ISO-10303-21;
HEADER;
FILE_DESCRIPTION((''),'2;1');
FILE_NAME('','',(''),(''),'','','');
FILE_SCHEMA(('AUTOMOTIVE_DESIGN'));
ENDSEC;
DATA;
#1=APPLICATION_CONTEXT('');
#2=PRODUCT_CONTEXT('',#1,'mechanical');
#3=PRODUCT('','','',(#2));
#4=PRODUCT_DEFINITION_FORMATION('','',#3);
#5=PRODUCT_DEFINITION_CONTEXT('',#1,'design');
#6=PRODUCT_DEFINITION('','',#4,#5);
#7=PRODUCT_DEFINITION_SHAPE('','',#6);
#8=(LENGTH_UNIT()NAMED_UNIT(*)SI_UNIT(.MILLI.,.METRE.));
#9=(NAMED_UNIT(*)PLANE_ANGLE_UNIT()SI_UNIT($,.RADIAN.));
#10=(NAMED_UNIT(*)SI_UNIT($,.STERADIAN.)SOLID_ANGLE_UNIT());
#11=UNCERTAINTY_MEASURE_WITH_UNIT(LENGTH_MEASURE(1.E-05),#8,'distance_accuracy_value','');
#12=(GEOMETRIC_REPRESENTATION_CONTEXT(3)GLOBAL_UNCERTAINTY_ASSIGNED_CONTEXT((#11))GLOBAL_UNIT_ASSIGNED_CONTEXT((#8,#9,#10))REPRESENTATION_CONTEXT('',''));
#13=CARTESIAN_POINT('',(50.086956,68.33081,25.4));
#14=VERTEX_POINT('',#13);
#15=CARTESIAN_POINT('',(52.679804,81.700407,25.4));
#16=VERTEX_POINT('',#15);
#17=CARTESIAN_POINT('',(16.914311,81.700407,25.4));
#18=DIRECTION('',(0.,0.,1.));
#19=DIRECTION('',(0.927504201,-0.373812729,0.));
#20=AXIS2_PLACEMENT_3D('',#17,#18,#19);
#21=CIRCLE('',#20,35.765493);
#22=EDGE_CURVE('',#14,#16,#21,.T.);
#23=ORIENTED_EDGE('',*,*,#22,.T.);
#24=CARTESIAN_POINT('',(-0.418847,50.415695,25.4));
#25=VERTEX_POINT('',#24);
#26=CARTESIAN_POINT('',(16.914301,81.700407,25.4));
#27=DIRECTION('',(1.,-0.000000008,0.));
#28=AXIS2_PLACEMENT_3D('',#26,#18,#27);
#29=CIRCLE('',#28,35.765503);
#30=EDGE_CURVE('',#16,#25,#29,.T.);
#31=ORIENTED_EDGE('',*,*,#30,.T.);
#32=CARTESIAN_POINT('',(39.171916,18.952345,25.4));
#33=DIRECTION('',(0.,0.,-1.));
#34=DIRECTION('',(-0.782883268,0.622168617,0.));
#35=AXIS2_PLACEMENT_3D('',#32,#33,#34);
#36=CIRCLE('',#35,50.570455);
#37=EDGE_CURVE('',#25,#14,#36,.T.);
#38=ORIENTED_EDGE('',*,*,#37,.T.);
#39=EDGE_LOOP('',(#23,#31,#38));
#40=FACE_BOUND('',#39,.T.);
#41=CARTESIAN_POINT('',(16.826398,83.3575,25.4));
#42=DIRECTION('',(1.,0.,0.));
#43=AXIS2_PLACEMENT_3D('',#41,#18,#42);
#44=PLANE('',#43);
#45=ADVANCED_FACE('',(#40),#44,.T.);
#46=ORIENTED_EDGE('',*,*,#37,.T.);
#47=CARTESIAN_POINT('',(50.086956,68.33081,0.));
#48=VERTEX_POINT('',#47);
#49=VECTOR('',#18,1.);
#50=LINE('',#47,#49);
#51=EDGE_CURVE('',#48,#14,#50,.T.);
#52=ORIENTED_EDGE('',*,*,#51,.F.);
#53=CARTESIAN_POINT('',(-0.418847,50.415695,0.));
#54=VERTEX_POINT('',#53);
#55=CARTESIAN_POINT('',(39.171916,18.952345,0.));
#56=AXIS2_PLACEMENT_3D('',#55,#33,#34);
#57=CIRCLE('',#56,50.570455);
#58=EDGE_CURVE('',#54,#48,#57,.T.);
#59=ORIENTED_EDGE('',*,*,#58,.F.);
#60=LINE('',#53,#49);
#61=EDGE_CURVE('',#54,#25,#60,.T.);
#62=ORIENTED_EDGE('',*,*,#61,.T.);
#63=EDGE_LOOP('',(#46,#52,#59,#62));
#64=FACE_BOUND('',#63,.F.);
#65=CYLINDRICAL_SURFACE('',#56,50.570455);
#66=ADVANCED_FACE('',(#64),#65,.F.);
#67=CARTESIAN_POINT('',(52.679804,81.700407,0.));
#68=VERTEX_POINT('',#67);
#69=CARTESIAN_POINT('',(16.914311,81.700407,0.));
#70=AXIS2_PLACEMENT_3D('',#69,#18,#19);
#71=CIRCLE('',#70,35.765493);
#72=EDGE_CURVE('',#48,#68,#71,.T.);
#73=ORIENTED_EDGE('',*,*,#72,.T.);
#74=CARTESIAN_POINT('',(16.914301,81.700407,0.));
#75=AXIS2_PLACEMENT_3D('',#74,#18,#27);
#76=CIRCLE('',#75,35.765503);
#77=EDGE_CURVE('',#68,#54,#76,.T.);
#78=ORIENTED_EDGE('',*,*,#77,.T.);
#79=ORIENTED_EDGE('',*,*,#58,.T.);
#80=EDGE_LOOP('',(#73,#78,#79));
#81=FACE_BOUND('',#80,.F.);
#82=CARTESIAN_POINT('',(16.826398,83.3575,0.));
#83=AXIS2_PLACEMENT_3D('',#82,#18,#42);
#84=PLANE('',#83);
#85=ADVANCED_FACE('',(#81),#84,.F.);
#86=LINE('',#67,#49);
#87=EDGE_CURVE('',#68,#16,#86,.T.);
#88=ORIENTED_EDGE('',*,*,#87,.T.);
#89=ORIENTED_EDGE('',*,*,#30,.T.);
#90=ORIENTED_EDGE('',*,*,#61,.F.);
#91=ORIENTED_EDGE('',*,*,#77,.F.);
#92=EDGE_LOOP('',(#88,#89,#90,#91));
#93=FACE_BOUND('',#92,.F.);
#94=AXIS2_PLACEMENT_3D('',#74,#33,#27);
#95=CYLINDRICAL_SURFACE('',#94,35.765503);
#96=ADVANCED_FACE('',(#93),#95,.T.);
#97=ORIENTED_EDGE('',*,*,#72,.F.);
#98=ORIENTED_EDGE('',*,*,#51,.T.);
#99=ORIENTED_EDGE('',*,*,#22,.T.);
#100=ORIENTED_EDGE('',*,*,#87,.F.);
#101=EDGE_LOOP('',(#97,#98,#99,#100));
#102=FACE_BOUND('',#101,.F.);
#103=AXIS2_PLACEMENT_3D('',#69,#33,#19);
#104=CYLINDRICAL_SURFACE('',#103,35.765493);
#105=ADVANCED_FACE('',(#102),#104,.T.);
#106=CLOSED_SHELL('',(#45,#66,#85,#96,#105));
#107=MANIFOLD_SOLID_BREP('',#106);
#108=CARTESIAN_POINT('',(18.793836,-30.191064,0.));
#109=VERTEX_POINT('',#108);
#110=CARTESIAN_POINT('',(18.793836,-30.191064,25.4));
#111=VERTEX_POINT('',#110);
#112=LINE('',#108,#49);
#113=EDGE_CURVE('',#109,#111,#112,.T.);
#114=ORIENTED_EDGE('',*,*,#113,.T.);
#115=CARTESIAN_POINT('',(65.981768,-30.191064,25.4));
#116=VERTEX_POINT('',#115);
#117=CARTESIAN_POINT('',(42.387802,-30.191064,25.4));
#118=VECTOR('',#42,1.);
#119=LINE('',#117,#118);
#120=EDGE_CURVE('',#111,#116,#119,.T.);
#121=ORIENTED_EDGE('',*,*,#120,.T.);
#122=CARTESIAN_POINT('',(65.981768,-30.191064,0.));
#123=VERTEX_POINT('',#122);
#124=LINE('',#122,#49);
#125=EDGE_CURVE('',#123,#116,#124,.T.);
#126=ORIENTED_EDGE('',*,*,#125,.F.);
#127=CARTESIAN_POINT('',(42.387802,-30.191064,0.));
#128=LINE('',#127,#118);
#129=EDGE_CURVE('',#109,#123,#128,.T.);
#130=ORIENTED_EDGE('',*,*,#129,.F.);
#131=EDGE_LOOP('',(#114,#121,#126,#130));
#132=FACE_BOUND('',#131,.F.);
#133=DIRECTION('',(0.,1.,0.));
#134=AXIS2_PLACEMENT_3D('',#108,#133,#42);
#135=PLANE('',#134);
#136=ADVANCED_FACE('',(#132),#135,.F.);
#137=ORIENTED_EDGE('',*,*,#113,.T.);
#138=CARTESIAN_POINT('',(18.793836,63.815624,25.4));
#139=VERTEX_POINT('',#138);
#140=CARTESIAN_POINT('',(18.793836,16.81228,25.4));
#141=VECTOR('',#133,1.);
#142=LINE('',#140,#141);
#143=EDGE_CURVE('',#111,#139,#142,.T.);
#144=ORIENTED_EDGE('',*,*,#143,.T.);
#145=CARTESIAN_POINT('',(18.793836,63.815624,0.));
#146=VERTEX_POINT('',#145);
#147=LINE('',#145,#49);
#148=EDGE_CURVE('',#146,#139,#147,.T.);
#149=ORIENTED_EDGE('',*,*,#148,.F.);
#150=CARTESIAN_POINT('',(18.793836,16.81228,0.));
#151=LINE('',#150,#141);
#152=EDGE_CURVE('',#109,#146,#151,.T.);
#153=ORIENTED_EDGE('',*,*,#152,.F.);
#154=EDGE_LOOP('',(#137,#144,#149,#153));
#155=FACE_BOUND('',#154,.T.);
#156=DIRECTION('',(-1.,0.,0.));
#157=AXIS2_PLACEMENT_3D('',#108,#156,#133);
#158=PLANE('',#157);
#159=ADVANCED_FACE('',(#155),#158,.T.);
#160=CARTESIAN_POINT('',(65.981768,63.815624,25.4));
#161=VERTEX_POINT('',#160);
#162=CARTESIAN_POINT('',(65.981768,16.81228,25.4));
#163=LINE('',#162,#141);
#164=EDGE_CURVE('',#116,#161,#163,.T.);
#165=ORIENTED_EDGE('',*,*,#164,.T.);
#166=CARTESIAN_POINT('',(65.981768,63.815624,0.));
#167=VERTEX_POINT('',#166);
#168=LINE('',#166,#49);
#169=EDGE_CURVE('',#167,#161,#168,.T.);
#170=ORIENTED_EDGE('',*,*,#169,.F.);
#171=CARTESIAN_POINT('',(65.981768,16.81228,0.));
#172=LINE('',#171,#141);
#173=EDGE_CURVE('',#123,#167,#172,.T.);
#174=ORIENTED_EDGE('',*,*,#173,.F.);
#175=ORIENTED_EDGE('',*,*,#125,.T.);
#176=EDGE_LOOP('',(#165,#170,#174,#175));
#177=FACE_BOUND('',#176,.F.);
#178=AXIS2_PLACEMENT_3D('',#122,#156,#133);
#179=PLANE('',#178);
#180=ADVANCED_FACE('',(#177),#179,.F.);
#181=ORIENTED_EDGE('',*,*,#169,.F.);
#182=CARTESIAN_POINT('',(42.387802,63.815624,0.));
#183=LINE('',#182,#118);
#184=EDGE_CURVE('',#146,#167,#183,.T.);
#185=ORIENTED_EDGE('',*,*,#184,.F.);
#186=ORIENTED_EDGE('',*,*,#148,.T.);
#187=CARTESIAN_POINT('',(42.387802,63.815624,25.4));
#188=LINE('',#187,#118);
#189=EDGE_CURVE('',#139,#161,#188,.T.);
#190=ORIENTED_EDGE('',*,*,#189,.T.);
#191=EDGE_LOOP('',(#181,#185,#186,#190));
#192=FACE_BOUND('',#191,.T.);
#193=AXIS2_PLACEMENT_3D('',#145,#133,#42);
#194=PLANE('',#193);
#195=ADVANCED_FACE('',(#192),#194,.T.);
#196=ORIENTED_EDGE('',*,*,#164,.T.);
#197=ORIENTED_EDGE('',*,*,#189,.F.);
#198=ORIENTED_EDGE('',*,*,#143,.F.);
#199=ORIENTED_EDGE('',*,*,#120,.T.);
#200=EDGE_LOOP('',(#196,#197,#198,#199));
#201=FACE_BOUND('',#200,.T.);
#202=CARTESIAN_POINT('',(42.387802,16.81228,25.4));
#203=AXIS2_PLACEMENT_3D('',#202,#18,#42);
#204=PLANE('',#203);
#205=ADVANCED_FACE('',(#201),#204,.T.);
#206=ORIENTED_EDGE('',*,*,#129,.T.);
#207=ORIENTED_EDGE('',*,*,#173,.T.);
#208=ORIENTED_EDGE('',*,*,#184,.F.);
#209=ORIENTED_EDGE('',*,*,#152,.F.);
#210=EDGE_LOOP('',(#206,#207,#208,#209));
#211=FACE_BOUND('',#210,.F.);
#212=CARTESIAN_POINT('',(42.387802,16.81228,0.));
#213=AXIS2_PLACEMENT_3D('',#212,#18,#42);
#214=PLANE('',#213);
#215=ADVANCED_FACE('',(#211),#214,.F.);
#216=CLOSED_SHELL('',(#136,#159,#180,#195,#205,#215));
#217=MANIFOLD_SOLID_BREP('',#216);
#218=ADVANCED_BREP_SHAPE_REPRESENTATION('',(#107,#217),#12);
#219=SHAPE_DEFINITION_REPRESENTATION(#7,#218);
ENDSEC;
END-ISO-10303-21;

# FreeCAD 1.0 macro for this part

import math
import FreeCAD as App
import Part
import Sketcher
from FreeCAD import Vector
Q = App.Units.Quantity

doc = App.newDocument("Part")
params = doc.addObject("Spreadsheet::Sheet", "Params")
for row, (alias, value) in enumerate([
    ("pad1_length", "1 in"),
    ("pad2_length", "1 in"),
], start=1):
    params.set(f"A{row}", alias)
    params.set(f"B{row}", "=" + value)
    params.setAlias(f"B{row}", alias)

body = doc.addObject("PartDesign::Body", "Body")

# Sketch on XY plane
sketch1 = body.newObject("Sketcher::SketchObject", "Sketch")
sketch1.AttachmentSupport = (doc.getObject("XY_Plane"), [""])
sketch1.MapMode = "FlatFace"
sketch1.addGeometry(Part.LineSegment(Vector(18.793836, 63.815624, 0), Vector(18.793836, -30.191064, 0)), False)
sketch1.addGeometry(Part.LineSegment(Vector(18.793836, -30.191064, 0), Vector(65.981768, -30.191064, 0)), False)
sketch1.addGeometry(Part.LineSegment(Vector(65.981768, -30.191064, 0), Vector(65.981768, 63.815624, 0)), False)
sketch1.addGeometry(Part.LineSegment(Vector(65.981768, 63.815624, 0), Vector(18.793836, 63.815624, 0)), False)
sketch1.addConstraint(Sketcher.Constraint("Coincident", 0, 2, 1, 1))
sketch1.addConstraint(Sketcher.Constraint("Coincident", 1, 2, 2, 1))
sketch1.addConstraint(Sketcher.Constraint("Coincident", 2, 2, 3, 1))
sketch1.addConstraint(Sketcher.Constraint("Coincident", 3, 2, 0, 1))
sketch1.addConstraint(Sketcher.Constraint("Vertical", 0))
sketch1.addConstraint(Sketcher.Constraint("Horizontal", 1))
sketch1.addConstraint(Sketcher.Constraint("Vertical", 2))
sketch1.addConstraint(Sketcher.Constraint("Horizontal", 3))
sketch1.addConstraint(Sketcher.Constraint("DistanceX", 1, 1, 1, 2, Q("47.187932 mm")))
sketch1.addConstraint(Sketcher.Constraint("DistanceY", 0, 2, 0, 1, Q("94.006688 mm")))
sketch1.addConstraint(Sketcher.Constraint("DistanceX", -1, 1, 1, 2, Q("65.981768 mm")))
sketch1.addConstraint(Sketcher.Constraint("DistanceY", 0, 2, -1, 1, Q("30.191064 mm")))
pad1 = body.newObject("PartDesign::Pad", "Pad")
pad1.Profile = sketch1
pad1.setExpression("Length", "Params.pad1_length")
body2 = doc.addObject("PartDesign::Body", "Body001")

# Sketch on XY plane
sketch2 = body2.newObject("Sketcher::SketchObject", "Sketch001")
sketch2.AttachmentSupport = (doc.getObject("XY_Plane001"), [""])
sketch2.MapMode = "FlatFace"
sketch2.addGeometry(Part.ArcOfCircle(Part.Circle(Vector(39.171916, 18.952345, 0), Vector(0, 0, 1), 50.570455), math.radians(77.535288), math.radians(141.525328)), False)
sketch2.addGeometry(Part.ArcOfCircle(Part.Circle(Vector(16.914311, 81.700407, 0), Vector(0, 0, 1), 35.765493), math.radians(-21.950951), math.radians(0.000001)), False)
sketch2.addGeometry(Part.ArcOfCircle(Part.Circle(Vector(16.914301, 81.700407, 0), Vector(0, 0, 1), 35.765503), math.radians(0), math.radians(241.011561)), False)
sketch2.addConstraint(Sketcher.Constraint("Coincident", 0, 1, 1, 1))
sketch2.addConstraint(Sketcher.Constraint("Tangent", 1, 2, 2, 1))
sketch2.addConstraint(Sketcher.Constraint("Coincident", 2, 2, 0, 2))
sketch2.addConstraint(Sketcher.Constraint("Horizontal", 2, 3, 1, 2))
sketch2.addConstraint(Sketcher.Constraint("Radius", 0, Q("50.570455 mm")))
sketch2.addConstraint(Sketcher.Constraint("Radius", 1, Q("35.765493 mm")))
sketch2.addConstraint(Sketcher.Constraint("Radius", 2, Q("35.765503 mm")))
sketch2.addConstraint(Sketcher.Constraint("DistanceX", -1, 1, 2, 3, Q("16.914301 mm")))
sketch2.addConstraint(Sketcher.Constraint("DistanceY", -1, 1, 0, 1, Q("68.33081 mm")))
sketch2.addConstraint(Sketcher.Constraint("DistanceY", 0, 3, 1, 3, Q("62.748062 mm")))
sketch2.addConstraint(Sketcher.Constraint("DistanceX", 0, 3, 0, 1, Q("10.91504 mm")))
pad2 = body2.newObject("PartDesign::Pad", "Pad001")
pad2.Profile = sketch2
pad2.setExpression("Length", "Params.pad2_length")

doc.recompute()
